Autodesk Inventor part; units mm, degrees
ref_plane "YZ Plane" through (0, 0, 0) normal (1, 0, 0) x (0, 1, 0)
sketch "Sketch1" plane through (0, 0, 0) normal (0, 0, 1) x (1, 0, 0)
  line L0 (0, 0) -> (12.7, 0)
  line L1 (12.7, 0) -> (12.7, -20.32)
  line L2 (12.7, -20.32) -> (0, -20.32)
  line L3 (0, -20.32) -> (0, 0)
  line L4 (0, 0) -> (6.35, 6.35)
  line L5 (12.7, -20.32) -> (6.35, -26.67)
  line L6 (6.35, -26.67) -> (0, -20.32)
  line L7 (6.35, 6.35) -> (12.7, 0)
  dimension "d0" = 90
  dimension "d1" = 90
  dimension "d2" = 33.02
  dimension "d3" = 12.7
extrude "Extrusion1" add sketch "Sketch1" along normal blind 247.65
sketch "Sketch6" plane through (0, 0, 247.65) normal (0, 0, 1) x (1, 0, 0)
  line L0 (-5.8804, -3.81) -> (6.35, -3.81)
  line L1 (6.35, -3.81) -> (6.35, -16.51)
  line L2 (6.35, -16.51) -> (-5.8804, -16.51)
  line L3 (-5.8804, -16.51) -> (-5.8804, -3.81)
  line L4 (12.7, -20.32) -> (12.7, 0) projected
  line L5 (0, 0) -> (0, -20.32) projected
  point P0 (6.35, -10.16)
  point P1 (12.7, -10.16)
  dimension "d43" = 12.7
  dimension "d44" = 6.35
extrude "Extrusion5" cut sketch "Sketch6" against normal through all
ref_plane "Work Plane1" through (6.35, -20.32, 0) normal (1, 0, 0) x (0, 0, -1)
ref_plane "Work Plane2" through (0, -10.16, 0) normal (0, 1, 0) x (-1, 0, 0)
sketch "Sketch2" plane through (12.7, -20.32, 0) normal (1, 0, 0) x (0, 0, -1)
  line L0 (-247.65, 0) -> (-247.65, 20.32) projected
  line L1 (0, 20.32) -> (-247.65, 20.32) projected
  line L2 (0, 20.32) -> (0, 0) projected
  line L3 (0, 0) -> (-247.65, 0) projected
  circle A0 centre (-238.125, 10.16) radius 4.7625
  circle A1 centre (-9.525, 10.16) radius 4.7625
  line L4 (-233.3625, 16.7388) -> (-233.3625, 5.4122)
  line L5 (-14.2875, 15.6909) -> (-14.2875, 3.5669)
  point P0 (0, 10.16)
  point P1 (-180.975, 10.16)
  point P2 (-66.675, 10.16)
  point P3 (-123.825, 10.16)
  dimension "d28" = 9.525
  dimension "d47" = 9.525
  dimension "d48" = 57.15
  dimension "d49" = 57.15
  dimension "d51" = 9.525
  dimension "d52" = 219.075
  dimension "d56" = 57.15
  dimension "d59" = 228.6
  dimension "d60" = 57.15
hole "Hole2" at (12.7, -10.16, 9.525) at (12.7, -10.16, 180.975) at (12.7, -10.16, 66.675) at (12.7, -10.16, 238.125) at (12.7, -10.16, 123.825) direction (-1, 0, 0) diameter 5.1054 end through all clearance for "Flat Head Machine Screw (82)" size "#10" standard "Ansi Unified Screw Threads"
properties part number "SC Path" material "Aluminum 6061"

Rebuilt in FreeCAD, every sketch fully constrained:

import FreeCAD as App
import Part
import Sketcher

V = App.Vector
Q = App.Units.Quantity


def add_polygon(sketch, points):
    """Adds a closed chain of lines whose ends are joined by coincident constraints."""
    first, n = sketch.GeometryCount, len(points)
    for a, b in zip(points, points[1:] + points[:1]):
        sketch.addGeometry(Part.LineSegment(App.Vector(*a, 0), App.Vector(*b, 0)), False)
    for i in range(n):
        sketch.addConstraint(Sketcher.Constraint("Coincident", first + i, 2, first + (i + 1) % n, 1))

doc = App.newDocument("Part")
body = doc.addObject("PartDesign::Body", "Body")

sketch1 = doc.addObject("Sketcher::SketchObject", "Sketch")
body.addObject(sketch1)
sketch1.AttachmentSupport = (doc.XY_Plane, [""])
sketch1.MapMode = "FlatFace"
add_polygon(sketch1, [(6.35, 6.35), (0, 0), (0, -20.32), (6.35, -26.67), (12.7, -20.32), (12.7, 0)])
sketch1.addConstraint([
    Sketcher.Constraint("Vertical", 1),
    Sketcher.Constraint("Vertical", 4),
    Sketcher.Constraint("Coincident", 0, 2, -1, 1),
    Sketcher.Constraint("PointOnObject", 4, 2, -1),
    Sketcher.Constraint("Perpendicular", 0, 2),
    Sketcher.Constraint("Perpendicular", 2, 3),
    Sketcher.Constraint("Perpendicular", 3, 5),
    Sketcher.Constraint("Horizontal", 1, 2, 3, 2),
    Sketcher.Constraint("Vertical", 2, 2, 5, 2),
    Sketcher.Constraint("DistanceX", -1, 1, 3, 2, Q("0.5 in")),
    Sketcher.Constraint("DistanceY", 2, 2, 5, 2, Q("1.3 in")),
])
pad1 = doc.addObject("PartDesign::Pad", "Pad")
body.addObject(pad1)
pad1.Profile = sketch1
pad1.Length = Q("9.75 in")

sketch2 = doc.addObject("Sketcher::SketchObject", "Sketch001")
body.addObject(sketch2)
sketch2.AttachmentSupport = (doc.XY_Plane, [""])
sketch2.MapMode = "FlatFace"
sketch2.AttachmentOffset = App.Placement(V(0, 0, 9.75 * 25.4), App.Rotation())
add_polygon(sketch2, [(-5.8804, -3.81), (-5.8804, -16.51), (6.35, -16.51), (6.35, -3.81)])
sketch2.addConstraint([
    Sketcher.Constraint("Vertical", 0),
    Sketcher.Constraint("Horizontal", 1),
    Sketcher.Constraint("Vertical", 2),
    Sketcher.Constraint("Horizontal", 3),
    Sketcher.Constraint("DistanceY", 0, 2, 0, 1, Q("0.5 in")),
    Sketcher.Constraint("DistanceX", -1, 1, 1, 2, Q("0.25 in")),
    Sketcher.Constraint("DistanceY", 0, 2, -1, 1, Q("0.65 in")),
    Sketcher.Constraint("DistanceX", 1, 1, 1, 2, Q("0.4815 in")),
])
pocket1 = doc.addObject("PartDesign::Pocket", "Pocket")
body.addObject(pocket1)
pocket1.Profile = sketch2
pocket1.Type = "ThroughAll"

sketch3 = doc.addObject("Sketcher::SketchObject", "Sketch002")
body.addObject(sketch3)
sketch3.AttachmentSupport = (doc.YZ_Plane, [""])
sketch3.MapMode = "FlatFace"
sketch3.AttachmentOffset = App.Placement(V(0, 0, 0.5 * 25.4), App.Rotation())
sketch3.addGeometry([
    Part.Circle(V(-10.16, 9.525, 0), V(0, 0, 1), 2.5527),
    Part.Circle(V(-10.16, 180.975, 0), V(0, 0, 1), 2.5527),
    Part.Circle(V(-10.16, 66.675, 0), V(0, 0, 1), 2.5527),
    Part.Circle(V(-10.16, 238.125, 0), V(0, 0, 1), 2.5527),
    Part.Circle(V(-10.16, 123.825, 0), V(0, 0, 1), 2.5527),
], False)
sketch3.addConstraint([
    Sketcher.Constraint("Equal", 0, 1),
    Sketcher.Constraint("Equal", 1, 2),
    Sketcher.Constraint("Equal", 2, 3),
    Sketcher.Constraint("Equal", 3, 4),
    Sketcher.Constraint("Vertical", 0, 3, 1, 3),
    Sketcher.Constraint("Vertical", 1, 3, 2, 3),
    Sketcher.Constraint("Vertical", 2, 3, 3, 3),
    Sketcher.Constraint("Vertical", 3, 3, 4, 3),
    Sketcher.Constraint("Diameter", 0, Q("0.201 in")),
    Sketcher.Constraint("DistanceY", 0, 3, 3, 3, Q("9 in")),
    Sketcher.Constraint("DistanceX", 0, 3, -1, 1, Q("0.4 in")),
    Sketcher.Constraint("DistanceY", 2, 3, 1, 3, Q("4.5 in")),
    Sketcher.Constraint("DistanceY", 0, 3, 4, 3, Q("4.5 in")),
    Sketcher.Constraint("DistanceY", 0, 3, 1, 3, Q("6.75 in")),
    Sketcher.Constraint("DistanceY", -1, 1, 0, 3, Q("0.375 in")),
])
doc.recompute()
hole = doc.addObject("PartDesign::Hole", "Hole")
body.addObject(hole)
hole.Profile = sketch3
hole.ThreadType = "None"
hole.Diameter = Q("0.201 in")
hole.DepthType = "ThroughAll"

doc.recompute()
